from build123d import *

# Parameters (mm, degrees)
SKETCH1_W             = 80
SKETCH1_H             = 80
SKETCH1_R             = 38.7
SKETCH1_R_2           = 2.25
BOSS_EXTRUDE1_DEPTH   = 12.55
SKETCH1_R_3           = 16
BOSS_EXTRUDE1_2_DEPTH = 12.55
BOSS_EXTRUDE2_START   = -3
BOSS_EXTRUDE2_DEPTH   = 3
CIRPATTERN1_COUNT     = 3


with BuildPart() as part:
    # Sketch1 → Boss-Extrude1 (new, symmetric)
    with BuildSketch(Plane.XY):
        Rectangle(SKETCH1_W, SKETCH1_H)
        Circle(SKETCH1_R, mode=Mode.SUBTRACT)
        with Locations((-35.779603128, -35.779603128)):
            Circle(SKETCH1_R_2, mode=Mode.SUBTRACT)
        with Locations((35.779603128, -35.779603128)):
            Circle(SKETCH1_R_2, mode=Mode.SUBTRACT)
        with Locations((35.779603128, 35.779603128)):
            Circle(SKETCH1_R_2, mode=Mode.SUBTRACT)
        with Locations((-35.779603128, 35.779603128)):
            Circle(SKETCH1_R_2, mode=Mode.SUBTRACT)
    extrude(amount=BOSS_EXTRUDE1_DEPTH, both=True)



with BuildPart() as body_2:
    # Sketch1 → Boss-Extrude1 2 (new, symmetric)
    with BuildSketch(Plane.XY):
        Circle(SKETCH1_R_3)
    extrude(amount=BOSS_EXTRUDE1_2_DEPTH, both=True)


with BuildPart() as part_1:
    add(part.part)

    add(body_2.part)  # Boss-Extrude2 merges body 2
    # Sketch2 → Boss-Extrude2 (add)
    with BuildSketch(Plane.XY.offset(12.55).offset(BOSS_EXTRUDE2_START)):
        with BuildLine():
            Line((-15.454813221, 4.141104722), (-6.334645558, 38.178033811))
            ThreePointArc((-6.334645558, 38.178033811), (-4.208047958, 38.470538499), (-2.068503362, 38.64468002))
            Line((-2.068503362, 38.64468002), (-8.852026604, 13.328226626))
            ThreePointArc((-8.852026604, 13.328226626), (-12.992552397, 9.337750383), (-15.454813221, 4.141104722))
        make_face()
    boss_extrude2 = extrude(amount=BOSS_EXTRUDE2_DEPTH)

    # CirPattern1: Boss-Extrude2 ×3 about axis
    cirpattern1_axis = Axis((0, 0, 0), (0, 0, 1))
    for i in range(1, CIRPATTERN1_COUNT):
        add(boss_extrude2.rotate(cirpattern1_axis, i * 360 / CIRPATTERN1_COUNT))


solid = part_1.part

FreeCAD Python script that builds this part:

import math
import FreeCAD as App
import Part
import Sketcher
Q = App.Units.Quantity


def add_polygon(sketch, points):
    """Adds a closed chain of lines whose ends are joined by coincident constraints."""
    first, n = sketch.GeometryCount, len(points)
    for a, b in zip(points, points[1:] + points[:1]):
        sketch.addGeometry(Part.LineSegment(App.Vector(*a, 0), App.Vector(*b, 0)), False)
    for i in range(n):
        sketch.addConstraint(Sketcher.Constraint("Coincident", first + i, 2, first + (i + 1) % n, 1))

doc = App.newDocument("Part")
body = doc.addObject("PartDesign::Body", "Body")

# Sketch on XY plane
sketch1 = body.newObject("Sketcher::SketchObject", "Sketch")
sketch1.AttachmentSupport = (doc.getObject("XY_Plane"), [""])
sketch1.MapMode = "FlatFace"
add_polygon(sketch1, [(-40, 40), (-40, -40), (40, -40), (40, 40)])  # lines 0-3
sketch1.addGeometry(Part.Circle(App.Vector(-35.779603, -35.779603, 0), App.Vector(0, 0, 1), 2.25), False)  # 4
sketch1.addGeometry(Part.Circle(App.Vector(35.779603, -35.779603, 0), App.Vector(0, 0, 1), 2.25), False)  # 5
sketch1.addGeometry(Part.Circle(App.Vector(-35.779603, 35.779603, 0), App.Vector(0, 0, 1), 2.25), False)  # 6
sketch1.addGeometry(Part.Circle(App.Vector(0, 0, 0), App.Vector(0, 0, 1), 38.7), False)  # 7
sketch1.addGeometry(Part.Circle(App.Vector(35.779603, 35.779603, 0), App.Vector(0, 0, 1), 2.25), False)  # 8
sketch1.addConstraint(Sketcher.Constraint("Vertical", 0))
sketch1.addConstraint(Sketcher.Constraint("Horizontal", 1))
sketch1.addConstraint(Sketcher.Constraint("Vertical", 2))
sketch1.addConstraint(Sketcher.Constraint("Horizontal", 3))
sketch1.addConstraint(Sketcher.Constraint("Coincident", 7, 3, -1, 1))
sketch1.addConstraint(Sketcher.Constraint("Equal", 4, 5))
sketch1.addConstraint(Sketcher.Constraint("Equal", 5, 6))
sketch1.addConstraint(Sketcher.Constraint("Equal", 6, 8))
sketch1.addConstraint(Sketcher.Constraint("Symmetric", 5, 3, 6, 3, -1, 1))
sketch1.addConstraint(Sketcher.Constraint("Symmetric", 4, 3, 8, 3, -1, 1))
sketch1.addConstraint(Sketcher.Constraint("Symmetric", 0, 2, 2, 2, -1, 1))
sketch1.addConstraint(Sketcher.Constraint("Symmetric", 4, 3, 5, 3, -2))
sketch1.addConstraint(Sketcher.Constraint("Equal", 3, 0))
sketch1.addConstraint(Sketcher.Constraint("Diameter", 4, 4.5))
sketch1.addConstraint(Sketcher.Constraint("Diameter", 7, 77.4))
sketch1.addConstraint(Sketcher.Constraint("DistanceX", 1, 1, 1, 2, 80.0))
sketch1.addConstraint(Sketcher.Constraint("DistanceX", 4, 3, -1, 1, 35.779603))
sketch1.addConstraint(Sketcher.Constraint("DistanceY", 4, 3, -1, 1, 35.779603))
pad1 = body.newObject("PartDesign::Pad", "Pad")
pad1.Profile = sketch1
pad1.Length = 25.1
pad1.Midplane = True
body2 = doc.addObject("PartDesign::Body", "Body001")

# Sketch on XY plane
sketch2 = body2.newObject("Sketcher::SketchObject", "Sketch001")
sketch2.AttachmentSupport = (doc.getObject("XY_Plane001"), [""])
sketch2.MapMode = "FlatFace"
sketch2.addGeometry(Part.Circle(App.Vector(0, 0, 0), App.Vector(0, 0, 1), 16), False)
sketch2.addConstraint(Sketcher.Constraint("Coincident", 0, 3, -1, 1))
sketch2.addConstraint(Sketcher.Constraint("Diameter", 0, 32.0))
pad2 = body2.newObject("PartDesign::Pad", "Pad001")
pad2.Profile = sketch2
pad2.Length = 25.1
pad2.Midplane = True
body.AllowCompound = True
doc.recompute()

boolean = body.newObject("PartDesign::Boolean", "Boolean")
boolean.Type = "Fuse"
boolean.addObjects([body2])

# Sketch on XY plane
sketch3 = body.newObject("Sketcher::SketchObject", "Sketch002")
sketch3.AttachmentSupport = (doc.getObject("XY_Plane"), [""])
sketch3.MapMode = "FlatFace"
sketch3.AttachmentOffset = App.Placement(App.Vector(0, 0, 9.55), App.Rotation())
sketch3.addGeometry(Part.LineSegment(App.Vector(-6.334646, 38.178034, 0), App.Vector(-15.454813, 4.141105, 0)), False)
sketch3.addGeometry(Part.ArcOfCircle(Part.Circle(App.Vector(0, 0, 0), App.Vector(0, 0, 1), 16), math.radians(123.590378), math.radians(165)), False)
sketch3.addGeometry(Part.LineSegment(App.Vector(-8.852027, 13.328227, 0), App.Vector(-2.068503, 38.64468, 0)), False)
sketch3.addGeometry(Part.ArcOfCircle(Part.Circle(App.Vector(0, 0, 0), App.Vector(0, 0, 1), 38.7), math.radians(93.063902), math.radians(99.420906)), False)
sketch3.addConstraint(Sketcher.Constraint("Tangent", 0, 2, 1, 2))
sketch3.addConstraint(Sketcher.Constraint("Coincident", 1, 1, 2, 1))
sketch3.addConstraint(Sketcher.Constraint("Coincident", 2, 2, 3, 1))
sketch3.addConstraint(Sketcher.Constraint("Coincident", 3, 2, 0, 1))
sketch3.addConstraint(Sketcher.Constraint("Coincident", 1, 3, -1, 1))
sketch3.addConstraint(Sketcher.Constraint("Coincident", 3, 3, -1, 1))
sketch3.addConstraint(Sketcher.Constraint("Parallel", 0, 2))
sketch3.addConstraint(Sketcher.Constraint("Radius", 1, 16.0))
sketch3.addConstraint(Sketcher.Constraint("Radius", 3, 38.7))
sketch3.addConstraint(Sketcher.Constraint("Angle", 0, Q("-105 deg")))
sketch3.addConstraint(Sketcher.Constraint("Distance", 2, 26.209521))
pad3 = body.newObject("PartDesign::Pad", "Pad002")
pad3.Profile = sketch3
pad3.Length = 3
doc.recompute()

polarpattern = body.newObject("PartDesign::PolarPattern", "PolarPattern")
polarpattern.Originals = [pad3]
polarpattern.Axis = (doc.getObject("Z_Axis"), [""])
polarpattern.Angle = 360
polarpattern.Occurrences = 3
body.Tip = polarpattern

doc.recompute()
